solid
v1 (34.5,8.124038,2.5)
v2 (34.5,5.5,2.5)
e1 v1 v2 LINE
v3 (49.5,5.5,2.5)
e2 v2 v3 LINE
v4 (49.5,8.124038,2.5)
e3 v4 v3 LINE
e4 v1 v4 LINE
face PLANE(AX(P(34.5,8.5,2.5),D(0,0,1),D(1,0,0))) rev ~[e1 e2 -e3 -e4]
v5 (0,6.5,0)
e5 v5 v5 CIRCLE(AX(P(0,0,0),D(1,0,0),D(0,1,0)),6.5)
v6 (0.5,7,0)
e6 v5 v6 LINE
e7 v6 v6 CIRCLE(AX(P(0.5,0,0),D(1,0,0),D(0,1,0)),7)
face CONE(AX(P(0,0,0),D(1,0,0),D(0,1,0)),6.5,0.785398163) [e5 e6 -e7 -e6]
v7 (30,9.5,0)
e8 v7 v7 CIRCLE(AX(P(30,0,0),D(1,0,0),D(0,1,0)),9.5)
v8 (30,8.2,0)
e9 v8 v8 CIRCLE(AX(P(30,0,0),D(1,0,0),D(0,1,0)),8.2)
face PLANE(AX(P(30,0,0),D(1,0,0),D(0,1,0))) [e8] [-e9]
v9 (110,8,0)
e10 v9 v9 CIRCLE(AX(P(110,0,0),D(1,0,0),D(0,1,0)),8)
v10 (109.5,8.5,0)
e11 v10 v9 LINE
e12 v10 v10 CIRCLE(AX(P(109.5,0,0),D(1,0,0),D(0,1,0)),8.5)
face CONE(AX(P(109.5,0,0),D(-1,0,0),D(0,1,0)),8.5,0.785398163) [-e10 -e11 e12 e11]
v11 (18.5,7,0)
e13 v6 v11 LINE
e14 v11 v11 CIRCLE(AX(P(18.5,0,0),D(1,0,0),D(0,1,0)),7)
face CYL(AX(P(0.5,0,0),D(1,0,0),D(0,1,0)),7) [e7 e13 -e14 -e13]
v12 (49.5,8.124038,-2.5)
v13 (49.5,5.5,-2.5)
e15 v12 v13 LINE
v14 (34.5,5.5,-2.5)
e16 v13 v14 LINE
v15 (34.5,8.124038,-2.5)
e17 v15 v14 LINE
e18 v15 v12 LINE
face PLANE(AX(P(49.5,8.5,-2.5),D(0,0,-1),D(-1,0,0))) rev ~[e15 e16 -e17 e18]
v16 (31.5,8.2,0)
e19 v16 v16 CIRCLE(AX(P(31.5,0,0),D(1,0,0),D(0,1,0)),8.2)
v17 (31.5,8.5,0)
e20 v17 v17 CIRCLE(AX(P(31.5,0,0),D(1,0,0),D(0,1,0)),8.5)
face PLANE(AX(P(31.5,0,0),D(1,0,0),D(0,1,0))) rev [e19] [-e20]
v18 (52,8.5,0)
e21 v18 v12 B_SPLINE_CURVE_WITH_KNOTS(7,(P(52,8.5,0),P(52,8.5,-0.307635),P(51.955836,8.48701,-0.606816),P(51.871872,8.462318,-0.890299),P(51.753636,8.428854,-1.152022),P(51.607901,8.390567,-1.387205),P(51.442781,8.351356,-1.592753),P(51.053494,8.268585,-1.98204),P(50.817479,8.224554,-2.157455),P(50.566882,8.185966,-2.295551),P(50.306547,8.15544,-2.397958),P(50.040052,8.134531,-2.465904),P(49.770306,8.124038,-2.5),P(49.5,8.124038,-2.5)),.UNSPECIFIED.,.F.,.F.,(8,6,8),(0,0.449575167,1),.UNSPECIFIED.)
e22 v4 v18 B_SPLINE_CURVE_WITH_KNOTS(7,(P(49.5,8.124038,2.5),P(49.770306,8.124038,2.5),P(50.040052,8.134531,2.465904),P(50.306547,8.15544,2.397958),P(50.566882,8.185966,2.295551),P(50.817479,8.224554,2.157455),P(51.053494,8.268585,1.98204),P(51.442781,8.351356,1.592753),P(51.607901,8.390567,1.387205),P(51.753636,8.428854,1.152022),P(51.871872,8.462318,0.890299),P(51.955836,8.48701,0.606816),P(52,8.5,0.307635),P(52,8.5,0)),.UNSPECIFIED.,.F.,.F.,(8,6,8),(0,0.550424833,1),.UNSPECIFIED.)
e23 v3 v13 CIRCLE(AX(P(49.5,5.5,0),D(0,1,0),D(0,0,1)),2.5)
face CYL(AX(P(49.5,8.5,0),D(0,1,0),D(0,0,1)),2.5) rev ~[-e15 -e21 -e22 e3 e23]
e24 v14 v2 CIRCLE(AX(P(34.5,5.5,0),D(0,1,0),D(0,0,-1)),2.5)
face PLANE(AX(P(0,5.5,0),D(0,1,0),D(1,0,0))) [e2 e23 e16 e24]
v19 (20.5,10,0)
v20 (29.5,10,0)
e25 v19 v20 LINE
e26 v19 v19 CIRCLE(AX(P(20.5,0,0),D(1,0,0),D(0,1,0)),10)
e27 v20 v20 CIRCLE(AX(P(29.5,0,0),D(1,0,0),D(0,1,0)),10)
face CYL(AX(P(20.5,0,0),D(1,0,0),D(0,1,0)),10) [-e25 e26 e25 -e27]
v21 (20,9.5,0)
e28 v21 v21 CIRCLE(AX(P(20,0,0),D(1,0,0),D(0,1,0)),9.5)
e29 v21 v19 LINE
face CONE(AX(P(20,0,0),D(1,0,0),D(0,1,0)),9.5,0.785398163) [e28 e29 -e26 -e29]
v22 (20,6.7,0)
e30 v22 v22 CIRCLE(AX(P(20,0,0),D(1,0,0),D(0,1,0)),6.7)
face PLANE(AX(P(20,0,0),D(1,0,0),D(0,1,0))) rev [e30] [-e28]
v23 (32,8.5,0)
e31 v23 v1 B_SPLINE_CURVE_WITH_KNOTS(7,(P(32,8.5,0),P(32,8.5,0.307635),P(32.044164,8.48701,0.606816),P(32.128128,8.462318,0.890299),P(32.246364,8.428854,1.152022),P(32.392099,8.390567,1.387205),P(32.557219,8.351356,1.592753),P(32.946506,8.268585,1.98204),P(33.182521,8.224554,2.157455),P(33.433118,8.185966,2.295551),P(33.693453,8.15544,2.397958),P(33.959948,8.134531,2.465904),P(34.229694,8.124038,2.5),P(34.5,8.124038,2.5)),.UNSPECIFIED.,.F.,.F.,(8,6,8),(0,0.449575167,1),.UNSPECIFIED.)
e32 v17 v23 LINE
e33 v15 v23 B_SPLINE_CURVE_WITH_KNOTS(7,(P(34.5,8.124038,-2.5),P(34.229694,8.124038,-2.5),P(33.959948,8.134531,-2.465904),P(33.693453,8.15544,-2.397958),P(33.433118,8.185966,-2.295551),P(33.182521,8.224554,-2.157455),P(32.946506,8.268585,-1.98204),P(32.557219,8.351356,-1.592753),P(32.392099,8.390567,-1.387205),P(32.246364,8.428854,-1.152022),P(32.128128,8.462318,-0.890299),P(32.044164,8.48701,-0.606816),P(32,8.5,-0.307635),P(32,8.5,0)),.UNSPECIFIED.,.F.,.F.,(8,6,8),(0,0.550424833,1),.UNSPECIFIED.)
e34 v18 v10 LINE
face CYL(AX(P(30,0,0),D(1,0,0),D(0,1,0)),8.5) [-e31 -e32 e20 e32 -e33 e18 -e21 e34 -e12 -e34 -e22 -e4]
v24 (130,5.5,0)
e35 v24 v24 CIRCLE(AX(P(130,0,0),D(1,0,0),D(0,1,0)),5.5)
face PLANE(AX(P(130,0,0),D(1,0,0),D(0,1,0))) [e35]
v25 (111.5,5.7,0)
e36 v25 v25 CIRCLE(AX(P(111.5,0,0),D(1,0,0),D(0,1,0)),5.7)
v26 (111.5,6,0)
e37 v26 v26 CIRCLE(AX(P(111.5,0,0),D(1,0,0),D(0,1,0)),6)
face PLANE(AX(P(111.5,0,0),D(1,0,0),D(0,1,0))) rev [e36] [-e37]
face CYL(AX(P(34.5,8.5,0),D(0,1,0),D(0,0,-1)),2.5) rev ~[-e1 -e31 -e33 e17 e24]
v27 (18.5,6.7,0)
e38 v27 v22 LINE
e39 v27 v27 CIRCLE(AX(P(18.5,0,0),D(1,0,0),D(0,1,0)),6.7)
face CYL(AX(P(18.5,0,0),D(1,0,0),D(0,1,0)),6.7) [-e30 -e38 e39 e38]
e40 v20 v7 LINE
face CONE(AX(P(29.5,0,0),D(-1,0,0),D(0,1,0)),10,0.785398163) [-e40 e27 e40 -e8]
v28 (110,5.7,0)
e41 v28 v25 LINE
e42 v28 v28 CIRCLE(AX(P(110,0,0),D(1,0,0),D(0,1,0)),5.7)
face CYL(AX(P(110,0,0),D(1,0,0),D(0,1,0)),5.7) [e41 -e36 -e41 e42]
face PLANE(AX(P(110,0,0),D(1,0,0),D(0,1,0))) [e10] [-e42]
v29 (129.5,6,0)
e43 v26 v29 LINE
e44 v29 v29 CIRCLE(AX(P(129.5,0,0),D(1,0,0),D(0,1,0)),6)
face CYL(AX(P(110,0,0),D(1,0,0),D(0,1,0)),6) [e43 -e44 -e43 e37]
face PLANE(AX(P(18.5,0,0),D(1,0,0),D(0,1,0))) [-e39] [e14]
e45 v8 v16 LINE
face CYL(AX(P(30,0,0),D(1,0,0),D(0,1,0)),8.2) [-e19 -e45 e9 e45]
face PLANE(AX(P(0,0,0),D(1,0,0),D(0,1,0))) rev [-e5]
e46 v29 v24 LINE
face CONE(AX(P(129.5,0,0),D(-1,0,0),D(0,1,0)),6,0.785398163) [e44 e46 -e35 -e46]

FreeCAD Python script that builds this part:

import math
import FreeCAD as App
import Part
import Sketcher
from FreeCAD import Vector


def add_polygon(sketch, points):
    """Adds a closed chain of lines whose ends are joined by coincident constraints."""
    first, n = sketch.GeometryCount, len(points)
    for a, b in zip(points, points[1:] + points[:1]):
        sketch.addGeometry(Part.LineSegment(App.Vector(*a, 0), App.Vector(*b, 0)), False)
    for i in range(n):
        sketch.addConstraint(Sketcher.Constraint("Coincident", first + i, 2, first + (i + 1) % n, 1))

doc = App.newDocument("Part")
body = doc.addObject("PartDesign::Body", "Body")

# Sketch on XY plane
sketch1 = body.newObject("Sketcher::SketchObject", "Sketch")
sketch1.AttachmentSupport = (doc.getObject("XY_Plane"), [""])
sketch1.MapMode = "FlatFace"
add_polygon(sketch1, [(0, 0), (130, 0), (130, 5.5), (129.5, 6), (110, 6), (110, 8), (109.5, 8.5), (30, 8.5), (30, 9.5), (29.5, 10), (20.5, 10), (20, 9.5), (20, 7), (0.5, 7), (0, 6.5)])  # lines 0-14
sketch1.addConstraint([
    Sketcher.Constraint("Horizontal", 0),
    Sketcher.Constraint("Vertical", 1),
    Sketcher.Constraint("Horizontal", 3),
    Sketcher.Constraint("Vertical", 4),
    Sketcher.Constraint("Horizontal", 6),
    Sketcher.Constraint("Vertical", 7),
    Sketcher.Constraint("Horizontal", 9),
    Sketcher.Constraint("Vertical", 11),
    Sketcher.Constraint("Horizontal", 12),
    Sketcher.Constraint("Vertical", 14),
    Sketcher.Constraint("Coincident", 14, 2, -1, 1),
    Sketcher.Constraint("Parallel", 2, 5),
    Sketcher.Constraint("Parallel", 5, 8),
    Sketcher.Constraint("Perpendicular", 8, 10),
    Sketcher.Constraint("Parallel", 10, 13),
    Sketcher.Constraint("Horizontal", 7, 2, 10, 2),
    Sketcher.Constraint("Equal", 3, 12),
    Sketcher.Constraint("Equal", 2, 5),
    Sketcher.Constraint("Equal", 5, 8),
    Sketcher.Constraint("Equal", 8, 10),
    Sketcher.Constraint("Equal", 10, 13),
    Sketcher.Constraint("DistanceX", 0, 1, 0, 2, 130.0),
    Sketcher.Constraint("DistanceX", 9, 2, 9, 1, 9.0),
    Sketcher.Constraint("DistanceY", 4, 1, 4, 2, 2.0),
    Sketcher.Constraint("DistanceY", 7, 1, 7, 2, 1.0),
    Sketcher.Constraint("DistanceX", 3, 2, 3, 1, 19.5),
    Sketcher.Constraint("DistanceX", 6, 2, 6, 1, 79.5),
    Sketcher.Constraint("DistanceY", 1, 1, 1, 2, 5.5),
    Sketcher.Constraint("DistanceY", 11, 2, 11, 1, 2.5),
])
revolution = body.newObject("PartDesign::Revolution", "Revolution")
revolution.Profile = sketch1
revolution.ReferenceAxis = (sketch1, ["H_Axis"])
revolution.Angle = 360

# Sketch on XY plane
sketch2 = body.newObject("Sketcher::SketchObject", "Sketch001")
sketch2.AttachmentSupport = (doc.getObject("XY_Plane"), [""])
sketch2.MapMode = "FlatFace"
add_polygon(sketch2, [(18.5, 20.7), (18.5, 6.7), (20, 6.7), (20, 20.7)])  # lines 0-3
sketch2.addConstraint([
    Sketcher.Constraint("Vertical", 0),
    Sketcher.Constraint("Horizontal", 1),
    Sketcher.Constraint("Vertical", 2),
    Sketcher.Constraint("Horizontal", 3),
    Sketcher.Constraint("DistanceY", 0, 2, 0, 1, 14.0),
    Sketcher.Constraint("DistanceX", 1, 1, 1, 2, 1.5),
    Sketcher.Constraint("DistanceX", -1, 1, 1, 2, 20.0),
    Sketcher.Constraint("DistanceY", -1, 1, 0, 2, 6.7),
])
groove = body.newObject("PartDesign::Groove", "Groove")
groove.Profile = sketch2
groove.ReferenceAxis = (sketch2, ["H_Axis"])
groove.Angle = 360

# Sketch on XY plane
sketch3 = body.newObject("Sketcher::SketchObject", "Sketch002")
sketch3.AttachmentSupport = (doc.getObject("XY_Plane"), [""])
sketch3.MapMode = "FlatFace"
add_polygon(sketch3, [(30, 22.2), (30, 8.2), (31.5, 8.2), (31.5, 22.2)])  # lines 0-3
sketch3.addConstraint([
    Sketcher.Constraint("Vertical", 0),
    Sketcher.Constraint("Horizontal", 1),
    Sketcher.Constraint("Vertical", 2),
    Sketcher.Constraint("Horizontal", 3),
    Sketcher.Constraint("DistanceY", 0, 2, 0, 1, 14.0),
    Sketcher.Constraint("DistanceX", 1, 1, 1, 2, 1.5),
    Sketcher.Constraint("DistanceX", -1, 1, 0, 2, 30.0),
    Sketcher.Constraint("DistanceY", -1, 1, 0, 2, 8.2),
])
groove2 = body.newObject("PartDesign::Groove", "Groove001")
groove2.Profile = sketch3
groove2.ReferenceAxis = (sketch3, ["H_Axis"])
groove2.Angle = 360

# Sketch on XY plane
sketch4 = body.newObject("Sketcher::SketchObject", "Sketch003")
sketch4.AttachmentSupport = (doc.getObject("XY_Plane"), [""])
sketch4.MapMode = "FlatFace"
add_polygon(sketch4, [(110, 19.7), (110, 5.7), (111.5, 5.7), (111.5, 19.7)])  # lines 0-3
sketch4.addConstraint([
    Sketcher.Constraint("Vertical", 0),
    Sketcher.Constraint("Horizontal", 1),
    Sketcher.Constraint("Vertical", 2),
    Sketcher.Constraint("Horizontal", 3),
    Sketcher.Constraint("DistanceY", 0, 2, 0, 1, 14.0),
    Sketcher.Constraint("DistanceX", 1, 1, 1, 2, 1.5),
    Sketcher.Constraint("DistanceX", -1, 1, 0, 2, 110.0),
    Sketcher.Constraint("DistanceY", -1, 1, 0, 2, 5.7),
])
groove3 = body.newObject("PartDesign::Groove", "Groove002")
groove3.Profile = sketch4
groove3.ReferenceAxis = (sketch4, ["H_Axis"])
groove3.Angle = 360

# Sketch on XZ plane
sketch5 = body.newObject("Sketcher::SketchObject", "Sketch004")
sketch5.AttachmentSupport = (doc.getObject("XZ_Plane"), [""])
sketch5.MapMode = "FlatFace"
sketch5.AttachmentOffset = App.Placement(Vector(0, 0, -8.5), App.Rotation())
sketch5.addGeometry([
    Part.LineSegment(Vector(49.5, -2.5, 0), Vector(34.5, -2.5, 0)),
    Part.ArcOfCircle(Part.Circle(Vector(34.5, 0, 0), Vector(0, 0, 1), 2.5), math.radians(90), math.radians(270)),
    Part.LineSegment(Vector(34.5, 2.5, 0), Vector(49.5, 2.5, 0)),
    Part.ArcOfCircle(Part.Circle(Vector(49.5, 0, 0), Vector(0, 0, 1), 2.5), math.radians(-90), math.radians(90)),
], False)
sketch5.addConstraint([
    Sketcher.Constraint("Tangent", 0, 2, 1, 2),
    Sketcher.Constraint("Tangent", 1, 1, 2, 1),
    Sketcher.Constraint("Tangent", 2, 2, 3, 2),
    Sketcher.Constraint("Tangent", 3, 1, 0, 1),
    Sketcher.Constraint("Horizontal", 0),
    Sketcher.Constraint("Horizontal", 2),
    Sketcher.Constraint("PointOnObject", 1, 3, -1),
    Sketcher.Constraint("Radius", 1, 2.5),
    Sketcher.Constraint("DistanceX", 0, 2, 0, 1, 15.0),
    Sketcher.Constraint("DistanceX", -1, 1, 1, 3, 34.5),
])
pocket1 = body.newObject("PartDesign::Pocket", "Pocket")
pocket1.Profile = sketch5
pocket1.Length = 3
pocket1.Reversed = True

doc.recompute()
